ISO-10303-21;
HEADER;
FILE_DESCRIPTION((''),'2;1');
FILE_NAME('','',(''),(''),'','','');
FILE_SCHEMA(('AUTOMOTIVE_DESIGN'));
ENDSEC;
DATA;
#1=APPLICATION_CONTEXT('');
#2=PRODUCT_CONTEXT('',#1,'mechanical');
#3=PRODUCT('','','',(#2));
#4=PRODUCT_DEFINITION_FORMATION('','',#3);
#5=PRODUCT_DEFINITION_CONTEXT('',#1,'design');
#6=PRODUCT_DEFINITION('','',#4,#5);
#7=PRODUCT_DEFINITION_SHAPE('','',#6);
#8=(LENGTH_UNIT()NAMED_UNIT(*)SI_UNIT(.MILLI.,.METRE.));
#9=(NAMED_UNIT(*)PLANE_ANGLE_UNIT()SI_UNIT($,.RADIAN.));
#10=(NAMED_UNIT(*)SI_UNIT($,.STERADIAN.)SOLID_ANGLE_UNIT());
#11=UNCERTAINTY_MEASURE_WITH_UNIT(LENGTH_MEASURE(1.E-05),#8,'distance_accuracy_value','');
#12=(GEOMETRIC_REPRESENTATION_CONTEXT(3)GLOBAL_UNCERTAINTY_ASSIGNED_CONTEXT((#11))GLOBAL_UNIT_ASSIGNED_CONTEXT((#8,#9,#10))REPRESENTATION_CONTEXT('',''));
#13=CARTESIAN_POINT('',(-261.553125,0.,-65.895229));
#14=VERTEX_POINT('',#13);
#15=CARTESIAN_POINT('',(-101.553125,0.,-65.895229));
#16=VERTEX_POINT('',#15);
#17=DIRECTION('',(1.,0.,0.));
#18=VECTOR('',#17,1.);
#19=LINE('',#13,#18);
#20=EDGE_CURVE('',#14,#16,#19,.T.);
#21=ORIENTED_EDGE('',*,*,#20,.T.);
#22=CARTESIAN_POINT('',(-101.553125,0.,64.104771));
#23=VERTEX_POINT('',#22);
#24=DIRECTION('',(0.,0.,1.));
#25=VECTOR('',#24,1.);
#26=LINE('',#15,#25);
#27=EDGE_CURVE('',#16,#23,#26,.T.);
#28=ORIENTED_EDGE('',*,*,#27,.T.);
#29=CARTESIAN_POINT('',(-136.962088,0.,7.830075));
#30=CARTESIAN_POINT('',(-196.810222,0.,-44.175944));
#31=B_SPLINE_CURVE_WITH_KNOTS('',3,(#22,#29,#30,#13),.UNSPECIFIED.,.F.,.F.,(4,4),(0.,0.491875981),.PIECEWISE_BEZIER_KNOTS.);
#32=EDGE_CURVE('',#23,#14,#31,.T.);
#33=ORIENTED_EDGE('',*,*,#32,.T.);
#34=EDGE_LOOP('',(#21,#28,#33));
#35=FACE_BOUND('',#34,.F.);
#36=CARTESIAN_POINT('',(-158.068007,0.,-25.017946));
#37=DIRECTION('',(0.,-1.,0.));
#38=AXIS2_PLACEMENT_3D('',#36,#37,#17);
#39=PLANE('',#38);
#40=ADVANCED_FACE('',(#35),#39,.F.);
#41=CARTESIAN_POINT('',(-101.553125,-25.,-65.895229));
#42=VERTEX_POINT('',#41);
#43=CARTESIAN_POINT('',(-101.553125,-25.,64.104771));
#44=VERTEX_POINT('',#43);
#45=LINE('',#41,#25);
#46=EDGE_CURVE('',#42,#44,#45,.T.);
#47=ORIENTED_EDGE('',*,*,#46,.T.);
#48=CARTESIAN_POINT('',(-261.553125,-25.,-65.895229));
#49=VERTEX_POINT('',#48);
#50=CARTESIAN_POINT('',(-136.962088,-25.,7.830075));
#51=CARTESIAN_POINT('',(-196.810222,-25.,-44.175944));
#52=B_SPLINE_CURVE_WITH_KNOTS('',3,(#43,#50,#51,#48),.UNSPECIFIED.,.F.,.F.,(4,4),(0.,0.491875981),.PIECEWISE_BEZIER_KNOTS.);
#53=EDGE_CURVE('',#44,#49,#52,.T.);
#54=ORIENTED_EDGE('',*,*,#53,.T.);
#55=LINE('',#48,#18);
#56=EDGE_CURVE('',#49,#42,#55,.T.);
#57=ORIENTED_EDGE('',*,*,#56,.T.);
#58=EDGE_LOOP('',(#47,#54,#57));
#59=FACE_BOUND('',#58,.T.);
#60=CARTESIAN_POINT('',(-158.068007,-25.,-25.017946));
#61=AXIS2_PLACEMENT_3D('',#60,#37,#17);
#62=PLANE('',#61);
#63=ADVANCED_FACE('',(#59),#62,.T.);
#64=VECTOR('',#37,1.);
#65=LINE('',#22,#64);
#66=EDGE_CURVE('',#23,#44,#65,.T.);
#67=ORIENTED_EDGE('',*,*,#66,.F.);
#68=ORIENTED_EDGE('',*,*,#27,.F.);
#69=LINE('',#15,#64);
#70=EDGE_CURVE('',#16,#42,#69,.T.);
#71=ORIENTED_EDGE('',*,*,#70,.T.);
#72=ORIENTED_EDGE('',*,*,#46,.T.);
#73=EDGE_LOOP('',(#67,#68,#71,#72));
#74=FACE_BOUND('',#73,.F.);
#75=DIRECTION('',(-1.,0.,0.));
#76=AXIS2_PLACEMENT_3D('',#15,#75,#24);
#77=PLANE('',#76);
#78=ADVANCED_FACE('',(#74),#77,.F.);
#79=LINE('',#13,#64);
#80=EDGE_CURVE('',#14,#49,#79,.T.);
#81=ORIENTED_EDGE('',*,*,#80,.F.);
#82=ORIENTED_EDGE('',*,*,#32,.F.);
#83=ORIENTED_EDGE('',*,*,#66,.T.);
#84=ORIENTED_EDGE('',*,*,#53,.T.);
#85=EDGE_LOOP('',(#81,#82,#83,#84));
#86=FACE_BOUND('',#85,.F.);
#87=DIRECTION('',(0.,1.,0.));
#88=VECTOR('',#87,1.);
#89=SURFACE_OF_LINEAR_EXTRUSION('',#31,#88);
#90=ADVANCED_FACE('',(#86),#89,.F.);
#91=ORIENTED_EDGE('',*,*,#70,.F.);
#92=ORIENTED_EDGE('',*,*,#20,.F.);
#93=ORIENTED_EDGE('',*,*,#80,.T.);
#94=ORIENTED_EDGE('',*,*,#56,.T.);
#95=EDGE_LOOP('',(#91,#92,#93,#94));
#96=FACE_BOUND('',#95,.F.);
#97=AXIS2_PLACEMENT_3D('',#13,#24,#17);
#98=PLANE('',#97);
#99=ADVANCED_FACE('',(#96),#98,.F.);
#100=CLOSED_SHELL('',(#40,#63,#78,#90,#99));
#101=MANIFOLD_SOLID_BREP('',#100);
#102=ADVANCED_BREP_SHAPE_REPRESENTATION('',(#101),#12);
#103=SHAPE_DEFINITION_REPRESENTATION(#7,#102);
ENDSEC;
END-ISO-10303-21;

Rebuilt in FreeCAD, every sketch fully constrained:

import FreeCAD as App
import Part
import Sketcher
from FreeCAD import Vector

doc = App.newDocument("Part")
params = doc.addObject("Spreadsheet::Sheet", "Params")
for row, (alias, value) in enumerate([
    ("pad1_length", "25 mm"),
], start=1):
    params.set(f"A{row}", alias)
    params.set(f"B{row}", "=" + value)
    params.setAlias(f"B{row}", alias)

body = doc.addObject("PartDesign::Body", "Body")

# Sketch on XZ plane
sketch1 = body.newObject("Sketcher::SketchObject", "Sketch")
sketch1.AttachmentSupport = (doc.getObject("XZ_Plane"), [""])
sketch1.MapMode = "FlatFace"
sketch1.addGeometry([
    Part.LineSegment(Vector(-101.553125, -65.895229, 0), Vector(-101.553125, 64.104771, 0)),
    Part.BSplineCurve([Vector(-101.553125, 64.104771, 0), Vector(-136.962088, 7.830075, 0), Vector(-196.810222, -44.175944, 0), Vector(-261.553125, -65.895229, 0)], [4, 4], [0, 0.491875981], False, 3, [1, 1, 1, 1], False),
    Part.LineSegment(Vector(-261.553125, -65.895229, 0), Vector(-101.553125, -65.895229, 0)),
], False)
sketch1.addConstraint([
    Sketcher.Constraint("Block", 1),
    Sketcher.Constraint("Coincident", 0, 2, 1, 1),
    Sketcher.Constraint("Coincident", 1, 2, 2, 1),
    Sketcher.Constraint("Coincident", 2, 2, 0, 1),
    Sketcher.Constraint("Vertical", 0),
    Sketcher.Constraint("Horizontal", 2),
])
pad1 = body.newObject("PartDesign::Pad", "Pad")
pad1.Profile = sketch1
pad1.setExpression("Length", "Params.pad1_length")

doc.recompute()
